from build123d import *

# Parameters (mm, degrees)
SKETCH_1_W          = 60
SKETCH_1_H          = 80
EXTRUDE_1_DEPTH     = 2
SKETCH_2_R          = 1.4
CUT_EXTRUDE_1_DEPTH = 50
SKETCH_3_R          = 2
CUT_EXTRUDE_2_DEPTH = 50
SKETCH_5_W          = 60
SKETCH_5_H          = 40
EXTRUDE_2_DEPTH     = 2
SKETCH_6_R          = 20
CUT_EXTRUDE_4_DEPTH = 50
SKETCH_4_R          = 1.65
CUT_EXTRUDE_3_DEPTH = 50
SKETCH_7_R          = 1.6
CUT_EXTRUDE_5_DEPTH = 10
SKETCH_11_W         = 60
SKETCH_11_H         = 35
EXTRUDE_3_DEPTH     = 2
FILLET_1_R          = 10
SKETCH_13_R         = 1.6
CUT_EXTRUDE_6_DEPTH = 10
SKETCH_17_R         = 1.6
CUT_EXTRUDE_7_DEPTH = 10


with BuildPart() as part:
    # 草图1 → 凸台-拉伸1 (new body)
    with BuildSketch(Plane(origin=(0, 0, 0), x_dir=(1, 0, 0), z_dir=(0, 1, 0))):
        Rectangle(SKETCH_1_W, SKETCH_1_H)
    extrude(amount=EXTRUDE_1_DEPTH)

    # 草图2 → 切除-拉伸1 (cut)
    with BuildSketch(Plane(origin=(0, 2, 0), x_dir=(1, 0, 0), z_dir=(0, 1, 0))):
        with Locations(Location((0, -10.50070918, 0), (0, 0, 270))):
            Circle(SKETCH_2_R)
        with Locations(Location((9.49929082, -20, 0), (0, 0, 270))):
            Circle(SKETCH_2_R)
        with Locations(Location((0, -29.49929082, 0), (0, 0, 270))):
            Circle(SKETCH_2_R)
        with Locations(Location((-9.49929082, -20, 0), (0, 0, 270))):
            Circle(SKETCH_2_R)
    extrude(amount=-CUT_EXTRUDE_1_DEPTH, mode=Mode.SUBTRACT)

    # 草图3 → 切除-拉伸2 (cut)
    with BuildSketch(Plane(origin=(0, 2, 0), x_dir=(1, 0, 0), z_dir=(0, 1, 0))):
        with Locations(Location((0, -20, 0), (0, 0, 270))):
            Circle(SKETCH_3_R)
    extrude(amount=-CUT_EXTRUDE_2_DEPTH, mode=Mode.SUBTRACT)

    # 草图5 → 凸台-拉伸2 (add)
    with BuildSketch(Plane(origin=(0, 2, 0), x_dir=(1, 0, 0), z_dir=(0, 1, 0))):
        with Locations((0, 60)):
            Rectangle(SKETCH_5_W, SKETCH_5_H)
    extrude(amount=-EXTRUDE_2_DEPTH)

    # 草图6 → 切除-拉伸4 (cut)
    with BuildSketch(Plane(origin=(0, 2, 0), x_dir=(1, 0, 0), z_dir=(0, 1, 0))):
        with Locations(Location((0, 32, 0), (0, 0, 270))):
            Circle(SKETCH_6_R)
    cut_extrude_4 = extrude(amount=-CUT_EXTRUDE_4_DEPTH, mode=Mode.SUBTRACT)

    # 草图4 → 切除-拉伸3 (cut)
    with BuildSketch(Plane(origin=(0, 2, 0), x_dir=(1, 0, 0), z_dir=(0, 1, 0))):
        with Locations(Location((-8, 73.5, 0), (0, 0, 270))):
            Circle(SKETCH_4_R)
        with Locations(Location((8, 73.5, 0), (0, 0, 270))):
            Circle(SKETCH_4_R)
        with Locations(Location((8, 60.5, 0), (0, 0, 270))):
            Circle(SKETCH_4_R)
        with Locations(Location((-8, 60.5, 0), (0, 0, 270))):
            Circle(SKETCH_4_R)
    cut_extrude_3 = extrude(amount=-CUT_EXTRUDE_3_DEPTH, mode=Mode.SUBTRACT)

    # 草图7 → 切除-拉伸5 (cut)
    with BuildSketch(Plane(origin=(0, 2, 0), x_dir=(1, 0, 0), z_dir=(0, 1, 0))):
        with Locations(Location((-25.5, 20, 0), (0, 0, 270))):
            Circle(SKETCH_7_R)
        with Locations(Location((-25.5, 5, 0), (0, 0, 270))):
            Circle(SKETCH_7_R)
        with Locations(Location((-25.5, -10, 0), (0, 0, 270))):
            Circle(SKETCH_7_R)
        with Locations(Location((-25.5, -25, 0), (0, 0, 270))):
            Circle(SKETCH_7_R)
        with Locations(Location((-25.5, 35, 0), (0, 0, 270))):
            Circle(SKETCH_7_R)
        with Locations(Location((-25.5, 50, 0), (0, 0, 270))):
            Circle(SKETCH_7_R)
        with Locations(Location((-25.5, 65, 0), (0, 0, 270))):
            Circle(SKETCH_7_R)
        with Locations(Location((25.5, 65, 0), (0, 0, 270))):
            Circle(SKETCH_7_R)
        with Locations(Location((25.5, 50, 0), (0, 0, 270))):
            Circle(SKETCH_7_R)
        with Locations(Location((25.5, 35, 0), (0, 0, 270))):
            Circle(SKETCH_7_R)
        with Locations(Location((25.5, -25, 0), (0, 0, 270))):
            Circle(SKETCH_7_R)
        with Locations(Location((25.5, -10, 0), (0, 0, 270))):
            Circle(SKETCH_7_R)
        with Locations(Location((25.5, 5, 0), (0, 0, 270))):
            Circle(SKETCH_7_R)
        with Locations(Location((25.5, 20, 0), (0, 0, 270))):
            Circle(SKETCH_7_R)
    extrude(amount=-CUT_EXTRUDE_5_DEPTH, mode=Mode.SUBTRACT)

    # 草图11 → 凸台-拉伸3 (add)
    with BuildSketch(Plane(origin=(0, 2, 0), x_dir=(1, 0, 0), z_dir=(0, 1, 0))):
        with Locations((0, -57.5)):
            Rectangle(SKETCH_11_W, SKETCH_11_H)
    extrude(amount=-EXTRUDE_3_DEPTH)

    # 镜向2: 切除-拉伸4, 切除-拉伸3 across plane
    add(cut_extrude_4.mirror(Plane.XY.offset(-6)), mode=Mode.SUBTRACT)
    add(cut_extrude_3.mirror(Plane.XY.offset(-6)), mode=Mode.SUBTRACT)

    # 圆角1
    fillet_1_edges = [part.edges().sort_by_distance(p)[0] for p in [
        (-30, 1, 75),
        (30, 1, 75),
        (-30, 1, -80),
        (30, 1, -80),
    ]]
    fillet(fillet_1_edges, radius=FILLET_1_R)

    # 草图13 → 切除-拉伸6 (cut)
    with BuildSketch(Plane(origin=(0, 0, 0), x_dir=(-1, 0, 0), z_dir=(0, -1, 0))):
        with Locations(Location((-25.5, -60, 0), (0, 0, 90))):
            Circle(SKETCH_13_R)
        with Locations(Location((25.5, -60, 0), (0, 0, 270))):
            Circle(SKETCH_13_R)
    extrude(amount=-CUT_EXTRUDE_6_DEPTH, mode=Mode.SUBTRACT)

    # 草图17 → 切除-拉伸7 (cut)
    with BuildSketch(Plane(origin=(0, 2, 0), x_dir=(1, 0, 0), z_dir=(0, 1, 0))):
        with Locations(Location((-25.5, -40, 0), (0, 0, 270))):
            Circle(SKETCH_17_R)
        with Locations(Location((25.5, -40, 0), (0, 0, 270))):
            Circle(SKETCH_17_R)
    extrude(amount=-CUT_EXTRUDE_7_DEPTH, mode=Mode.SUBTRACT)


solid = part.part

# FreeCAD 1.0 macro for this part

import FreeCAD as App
import Part
import Sketcher

V = App.Vector
Q = App.Units.Quantity


def edges_at(feature, points):
    """Names of the edges that pass closest to the given points."""
    edges = feature.Shape.Edges
    near = lambda p: min(range(len(edges)), key=lambda i: edges[i].distToShape(Part.Vertex(*p))[0])
    return sorted({f"Edge{near(p) + 1}" for p in points})


def add_polygon(sketch, points):
    """Adds a closed chain of lines whose ends are joined by coincident constraints."""
    first, n = sketch.GeometryCount, len(points)
    for a, b in zip(points, points[1:] + points[:1]):
        sketch.addGeometry(Part.LineSegment(App.Vector(*a, 0), App.Vector(*b, 0)), False)
    for i in range(n):
        sketch.addConstraint(Sketcher.Constraint("Coincident", first + i, 2, first + (i + 1) % n, 1))

doc = App.newDocument("Part")
body = doc.addObject("PartDesign::Body", "Body")

sketch1 = body.newObject("Sketcher::SketchObject", "Sketch")
sketch1.AttachmentSupport = (doc.getObject("XZ_Plane"), [""])
sketch1.MapMode = "FlatFace"
add_polygon(sketch1, [(-30, -40), (-30, 40), (30, 40), (30, -40)])
sketch1.addConstraint([
    Sketcher.Constraint("Vertical", 0),
    Sketcher.Constraint("Horizontal", 1),
    Sketcher.Constraint("Vertical", 2),
    Sketcher.Constraint("Horizontal", 3),
    Sketcher.Constraint("Symmetric", 0, 2, 2, 2, -1, 1),
    Sketcher.Constraint("DistanceX", 1, 1, 1, 2, Q("60 mm")),
    Sketcher.Constraint("DistanceY", 0, 1, 0, 2, Q("80 mm")),
])
pad1 = body.newObject("PartDesign::Pad", "Pad")
pad1.Profile = sketch1
pad1.Length = 2
pad1.Reversed = True

sketch2 = body.newObject("Sketcher::SketchObject", "Sketch001")
sketch2.AttachmentSupport = (doc.getObject("XZ_Plane"), [""])
sketch2.MapMode = "FlatFace"
sketch2.AttachmentOffset = App.Placement(V(0, 0, -2), App.Rotation())
sketch2.addGeometry([
    Part.Circle(V(0, 10.5, 0), V(0, 0, 1), 1.4),
    Part.Circle(V(9.5, 20, 0), V(0, 0, 1), 1.4),
    Part.Circle(V(0, 29.5, 0), V(0, 0, 1), 1.4),
    Part.Circle(V(-9.5, 20, 0), V(0, 0, 1), 1.4),
], False)
sketch2.addConstraint([
    Sketcher.Constraint("Equal", 0, 1),
    Sketcher.Constraint("Equal", 1, 2),
    Sketcher.Constraint("Equal", 2, 3),
    Sketcher.Constraint("Symmetric", 1, 3, 3, 3, -2),
    Sketcher.Constraint("PointOnObject", 0, 3, -2),
    Sketcher.Constraint("PointOnObject", 2, 3, -2),
    Sketcher.Constraint("Diameter", 0, Q("2.8 mm")),
    Sketcher.Constraint("DistanceY", -1, 1, 1, 3, Q("20 mm")),
    Sketcher.Constraint("DistanceY", -1, 1, 0, 3, Q("10.500709 mm")),
    Sketcher.Constraint("DistanceX", -1, 1, 1, 3, Q("9.499291 mm")),
    Sketcher.Constraint("DistanceY", -1, 1, 2, 3, Q("29.499291 mm")),
])
pocket1 = body.newObject("PartDesign::Pocket", "Pocket")
pocket1.Profile = sketch2
pocket1.Length = 50
pocket1.Reversed = True

sketch3 = body.newObject("Sketcher::SketchObject", "Sketch002")
sketch3.AttachmentSupport = (doc.getObject("XZ_Plane"), [""])
sketch3.MapMode = "FlatFace"
sketch3.AttachmentOffset = App.Placement(V(0, 0, -2), App.Rotation())
sketch3.addGeometry(Part.Circle(V(0, 20, 0), V(0, 0, 1), 2), False)
sketch3.addConstraint([
    Sketcher.Constraint("PointOnObject", 0, 3, -2),
    Sketcher.Constraint("Diameter", 0, Q("4 mm")),
    Sketcher.Constraint("DistanceY", -1, 1, 0, 3, Q("20 mm")),
])
pocket2 = body.newObject("PartDesign::Pocket", "Pocket001")
pocket2.Profile = sketch3
pocket2.Length = 50
pocket2.Reversed = True

sketch4 = body.newObject("Sketcher::SketchObject", "Sketch003")
sketch4.AttachmentSupport = (doc.getObject("XZ_Plane"), [""])
sketch4.MapMode = "FlatFace"
sketch4.AttachmentOffset = App.Placement(V(0, 0, -2), App.Rotation())
add_polygon(sketch4, [(-30, -80), (-30, -40), (30, -40), (30, -80)])
sketch4.addConstraint([
    Sketcher.Constraint("Vertical", 0),
    Sketcher.Constraint("Horizontal", 1),
    Sketcher.Constraint("Vertical", 2),
    Sketcher.Constraint("Horizontal", 3),
    Sketcher.Constraint("DistanceX", 1, 1, 1, 2, Q("60 mm")),
    Sketcher.Constraint("DistanceY", 0, 1, 0, 2, Q("40 mm")),
    Sketcher.Constraint("DistanceX", 0, 2, -1, 1, Q("30 mm")),
    Sketcher.Constraint("DistanceY", 0, 2, -1, 1, Q("40 mm")),
])
pad2 = body.newObject("PartDesign::Pad", "Pad001")
pad2.Profile = sketch4
pad2.Length = 2

sketch5 = body.newObject("Sketcher::SketchObject", "Sketch004")
sketch5.AttachmentSupport = (doc.getObject("XZ_Plane"), [""])
sketch5.MapMode = "FlatFace"
sketch5.AttachmentOffset = App.Placement(V(0, 0, -2), App.Rotation())
sketch5.addGeometry(Part.Circle(V(0, -32, 0), V(0, 0, 1), 20), False)
sketch5.addConstraint([
    Sketcher.Constraint("PointOnObject", 0, 3, -2),
    Sketcher.Constraint("Diameter", 0, Q("40 mm")),
    Sketcher.Constraint("DistanceY", 0, 3, -1, 1, Q("32 mm")),
])
pocket3 = body.newObject("PartDesign::Pocket", "Pocket002")
pocket3.Profile = sketch5
pocket3.Length = 50
pocket3.Reversed = True

sketch6 = body.newObject("Sketcher::SketchObject", "Sketch005")
sketch6.AttachmentSupport = (doc.getObject("XZ_Plane"), [""])
sketch6.MapMode = "FlatFace"
sketch6.AttachmentOffset = App.Placement(V(0, 0, -2), App.Rotation())
sketch6.addGeometry([
    Part.Circle(V(-8, -73.5, 0), V(0, 0, 1), 1.6),
    Part.Circle(V(8, -73.5, 0), V(0, 0, 1), 1.6),
    Part.Circle(V(8, -60.5, 0), V(0, 0, 1), 1.6),
    Part.Circle(V(-8, -60.5, 0), V(0, 0, 1), 1.6),
], False)
sketch6.addConstraint([
    Sketcher.Constraint("Equal", 0, 1),
    Sketcher.Constraint("Equal", 1, 2),
    Sketcher.Constraint("Equal", 2, 3),
    Sketcher.Constraint("Symmetric", 0, 3, 1, 3, -2),
    Sketcher.Constraint("Symmetric", 2, 3, 3, 3, -2),
    Sketcher.Constraint("Vertical", 1, 3, 2, 3),
    Sketcher.Constraint("Diameter", 0, Q("3.3 mm")),
    Sketcher.Constraint("DistanceX", 0, 3, -1, 1, Q("8 mm")),
    Sketcher.Constraint("DistanceY", 1, 3, 2, 3, Q("13 mm")),
    Sketcher.Constraint("DistanceY", 0, 3, -1, 1, Q("73.5 mm")),
])
pocket4 = body.newObject("PartDesign::Pocket", "Pocket003")
pocket4.Profile = sketch6
pocket4.Length = 50
pocket4.Reversed = True

sketch7 = body.newObject("Sketcher::SketchObject", "Sketch006")
sketch7.AttachmentSupport = (doc.getObject("XZ_Plane"), [""])
sketch7.MapMode = "FlatFace"
sketch7.AttachmentOffset = App.Placement(V(0, 0, -2), App.Rotation())
sketch7.addGeometry([
    Part.Circle(V(-25.5, -20, 0), V(0, 0, 1), 1.6),
    Part.Circle(V(-25.5, -5, 0), V(0, 0, 1), 1.6),
    Part.Circle(V(-25.5, 10, 0), V(0, 0, 1), 1.6),
    Part.Circle(V(-25.5, 25, 0), V(0, 0, 1), 1.6),
    Part.Circle(V(-25.5, -35, 0), V(0, 0, 1), 1.6),
    Part.Circle(V(-25.5, -50, 0), V(0, 0, 1), 1.6),
    Part.Circle(V(-25.5, -65, 0), V(0, 0, 1), 1.6),
    Part.Circle(V(25.5, -65, 0), V(0, 0, 1), 1.6),
    Part.Circle(V(25.5, -50, 0), V(0, 0, 1), 1.6),
    Part.Circle(V(25.5, -35, 0), V(0, 0, 1), 1.6),
    Part.Circle(V(25.5, 25, 0), V(0, 0, 1), 1.6),
    Part.Circle(V(25.5, 10, 0), V(0, 0, 1), 1.6),
    Part.Circle(V(25.5, -5, 0), V(0, 0, 1), 1.6),
    Part.Circle(V(25.5, -20, 0), V(0, 0, 1), 1.6),
], False)
sketch7.addConstraint([
    Sketcher.Constraint("Equal", 0, 1),
    Sketcher.Constraint("Equal", 1, 2),
    Sketcher.Constraint("Equal", 2, 3),
    Sketcher.Constraint("Equal", 3, 4),
    Sketcher.Constraint("Equal", 4, 5),
    Sketcher.Constraint("Equal", 5, 6),
    Sketcher.Constraint("Equal", 6, 7),
    Sketcher.Constraint("Equal", 7, 8),
    Sketcher.Constraint("Equal", 8, 9),
    Sketcher.Constraint("Equal", 9, 10),
    Sketcher.Constraint("Equal", 10, 11),
    Sketcher.Constraint("Equal", 11, 12),
    Sketcher.Constraint("Equal", 12, 13),
    Sketcher.Constraint("Symmetric", 6, 3, 7, 3, -2),
    Sketcher.Constraint("Symmetric", 5, 3, 8, 3, -2),
    Sketcher.Constraint("Symmetric", 4, 3, 9, 3, -2),
    Sketcher.Constraint("Symmetric", 3, 3, 10, 3, -2),
    Sketcher.Constraint("Symmetric", 2, 3, 11, 3, -2),
    Sketcher.Constraint("Symmetric", 1, 3, 12, 3, -2),
    Sketcher.Constraint("Symmetric", 0, 3, 13, 3, -2),
    Sketcher.Constraint("Vertical", 0, 3, 1, 3),
    Sketcher.Constraint("Vertical", 1, 3, 2, 3),
    Sketcher.Constraint("Vertical", 2, 3, 3, 3),
    Sketcher.Constraint("Vertical", 3, 3, 4, 3),
    Sketcher.Constraint("Vertical", 4, 3, 5, 3),
    Sketcher.Constraint("Vertical", 5, 3, 6, 3),
    Sketcher.Constraint("Diameter", 0, Q("3.2 mm")),
    Sketcher.Constraint("DistanceY", 0, 3, -1, 1, Q("20 mm")),
    Sketcher.Constraint("DistanceY", 1, 3, -1, 1, Q("5 mm")),
    Sketcher.Constraint("DistanceY", -1, 1, 2, 3, Q("10 mm")),
    Sketcher.Constraint("DistanceY", -1, 1, 3, 3, Q("25 mm")),
    Sketcher.Constraint("DistanceY", 4, 3, -1, 1, Q("35 mm")),
    Sketcher.Constraint("DistanceY", 5, 3, -1, 1, Q("50 mm")),
    Sketcher.Constraint("DistanceY", 6, 3, -1, 1, Q("65 mm")),
    Sketcher.Constraint("DistanceX", 6, 3, 7, 3, Q("51 mm")),
])
pocket5 = body.newObject("PartDesign::Pocket", "Pocket004")
pocket5.Profile = sketch7
pocket5.Length = 10
pocket5.Reversed = True

sketch8 = body.newObject("Sketcher::SketchObject", "Sketch007")
sketch8.AttachmentSupport = (doc.getObject("XZ_Plane"), [""])
sketch8.MapMode = "FlatFace"
sketch8.AttachmentOffset = App.Placement(V(0, 0, -2), App.Rotation())
add_polygon(sketch8, [(-30, 40), (-30, 75), (30, 75), (30, 40)])
sketch8.addConstraint([
    Sketcher.Constraint("Vertical", 0),
    Sketcher.Constraint("Horizontal", 1),
    Sketcher.Constraint("Vertical", 2),
    Sketcher.Constraint("Horizontal", 3),
    Sketcher.Constraint("DistanceX", 1, 1, 1, 2, Q("60 mm")),
    Sketcher.Constraint("DistanceY", 0, 1, 0, 2, Q("35 mm")),
    Sketcher.Constraint("DistanceX", 0, 2, -1, 1, Q("30 mm")),
    Sketcher.Constraint("DistanceY", -1, 1, 0, 2, Q("75 mm")),
])
pad3 = body.newObject("PartDesign::Pad", "Pad002")
pad3.Profile = sketch8
pad3.Length = 2
doc.recompute()

datumplane = body.newObject("PartDesign::Plane", "DatumPlane")
datumplane.AttachmentSupport = (doc.getObject("XY_Plane"), [""])
datumplane.MapMode = "FlatFace"
datumplane.AttachmentOffset = App.Placement(V(0, 0, -6), App.Rotation())
mirrored = body.newObject("PartDesign::Mirrored", "Mirrored")
mirrored.Originals = [pocket3, pocket4]
mirrored.MirrorPlane = (datumplane, [""])
body.Tip = mirrored
doc.recompute()

fillet = body.newObject("PartDesign::Fillet", "Fillet")
fillet.Base = (mirrored, edges_at(mirrored, [
    (-30, 1, 75),
    (30, 1, 75),
    (-30, 1, -80),
    (30, 1, -80),
]))
fillet.Radius = 10

sketch9 = body.newObject("Sketcher::SketchObject", "Sketch008")
sketch9.AttachmentSupport = (doc.getObject("XZ_Plane"), [""])
sketch9.MapMode = "FlatFace"
sketch9.addGeometry([
    Part.Circle(V(25.5, 60, 0), V(0, 0, 1), 1.6),
    Part.Circle(V(-25.5, 60, 0), V(0, 0, 1), 1.6),
], False)
sketch9.addConstraint([
    Sketcher.Constraint("Equal", 0, 1),
    Sketcher.Constraint("Symmetric", 0, 3, 1, 3, -2),
    Sketcher.Constraint("Diameter", 0, Q("3.2 mm")),
    Sketcher.Constraint("DistanceY", -1, 1, 0, 3, Q("60 mm")),
    Sketcher.Constraint("DistanceX", 1, 3, 0, 3, Q("51 mm")),
])
pocket6 = body.newObject("PartDesign::Pocket", "Pocket005")
pocket6.Profile = sketch9
pocket6.Length = 10

sketch10 = body.newObject("Sketcher::SketchObject", "Sketch009")
sketch10.AttachmentSupport = (doc.getObject("XZ_Plane"), [""])
sketch10.MapMode = "FlatFace"
sketch10.AttachmentOffset = App.Placement(V(0, 0, -2), App.Rotation())
sketch10.addGeometry([
    Part.Circle(V(-25.5, 40, 0), V(0, 0, 1), 1.6),
    Part.Circle(V(25.5, 40, 0), V(0, 0, 1), 1.6),
], False)
sketch10.addConstraint([
    Sketcher.Constraint("Equal", 0, 1),
    Sketcher.Constraint("Symmetric", 0, 3, 1, 3, -2),
    Sketcher.Constraint("Diameter", 0, Q("3.2 mm")),
    Sketcher.Constraint("DistanceY", -1, 1, 0, 3, Q("40 mm")),
    Sketcher.Constraint("DistanceX", 0, 3, 1, 3, Q("51 mm")),
])
pocket7 = body.newObject("PartDesign::Pocket", "Pocket006")
pocket7.Profile = sketch10
pocket7.Length = 10
pocket7.Reversed = True

doc.recompute()
